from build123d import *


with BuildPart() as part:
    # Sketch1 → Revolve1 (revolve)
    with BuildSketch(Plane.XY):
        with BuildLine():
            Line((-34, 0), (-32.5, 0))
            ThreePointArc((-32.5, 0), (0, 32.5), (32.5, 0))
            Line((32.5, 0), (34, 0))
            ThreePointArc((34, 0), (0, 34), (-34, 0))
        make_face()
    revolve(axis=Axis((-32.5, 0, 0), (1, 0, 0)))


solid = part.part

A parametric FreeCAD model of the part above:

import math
import FreeCAD as App
import Part
import Sketcher
from FreeCAD import Vector
Q = App.Units.Quantity

doc = App.newDocument("Part")
body = doc.addObject("PartDesign::Body", "Body")

# Sketch on XY plane
sketch1 = body.newObject("Sketcher::SketchObject", "Sketch")
sketch1.AttachmentSupport = (doc.getObject("XY_Plane"), [""])
sketch1.MapMode = "FlatFace"
sketch1.addGeometry([
    Part.LineSegment(Vector(-34, 0, 0), Vector(-32.5, 0, 0)),
    Part.ArcOfCircle(Part.Circle(Vector(0, 0, 0), Vector(0, 0, 1), 32.5), math.radians(0), math.radians(180)),
    Part.LineSegment(Vector(32.5, 0, 0), Vector(34, 0, 0)),
    Part.ArcOfCircle(Part.Circle(Vector(0, 0, 0), Vector(0, 0, 1), 34), math.radians(0), math.radians(180)),
], False)
sketch1.addConstraint([
    Sketcher.Constraint("Coincident", 0, 2, 1, 2),
    Sketcher.Constraint("Coincident", 1, 1, 2, 1),
    Sketcher.Constraint("Coincident", 2, 2, 3, 1),
    Sketcher.Constraint("Coincident", 3, 2, 0, 1),
    Sketcher.Constraint("Horizontal", 0),
    Sketcher.Constraint("Horizontal", 2),
    Sketcher.Constraint("Coincident", 1, 3, -1, 1),
    Sketcher.Constraint("Coincident", 3, 3, -1, 1),
    Sketcher.Constraint("PointOnObject", 0, 2, -1),
    Sketcher.Constraint("PointOnObject", 1, 1, -1),
    Sketcher.Constraint("Radius", 3, Q("34 mm")),
    Sketcher.Constraint("Radius", 1, Q("32.5 mm")),
])
revolution = body.newObject("PartDesign::Revolution", "Revolution")
revolution.Profile = sketch1
revolution.ReferenceAxis = (sketch1, ["H_Axis"])
revolution.Angle = 360

doc.recompute()
